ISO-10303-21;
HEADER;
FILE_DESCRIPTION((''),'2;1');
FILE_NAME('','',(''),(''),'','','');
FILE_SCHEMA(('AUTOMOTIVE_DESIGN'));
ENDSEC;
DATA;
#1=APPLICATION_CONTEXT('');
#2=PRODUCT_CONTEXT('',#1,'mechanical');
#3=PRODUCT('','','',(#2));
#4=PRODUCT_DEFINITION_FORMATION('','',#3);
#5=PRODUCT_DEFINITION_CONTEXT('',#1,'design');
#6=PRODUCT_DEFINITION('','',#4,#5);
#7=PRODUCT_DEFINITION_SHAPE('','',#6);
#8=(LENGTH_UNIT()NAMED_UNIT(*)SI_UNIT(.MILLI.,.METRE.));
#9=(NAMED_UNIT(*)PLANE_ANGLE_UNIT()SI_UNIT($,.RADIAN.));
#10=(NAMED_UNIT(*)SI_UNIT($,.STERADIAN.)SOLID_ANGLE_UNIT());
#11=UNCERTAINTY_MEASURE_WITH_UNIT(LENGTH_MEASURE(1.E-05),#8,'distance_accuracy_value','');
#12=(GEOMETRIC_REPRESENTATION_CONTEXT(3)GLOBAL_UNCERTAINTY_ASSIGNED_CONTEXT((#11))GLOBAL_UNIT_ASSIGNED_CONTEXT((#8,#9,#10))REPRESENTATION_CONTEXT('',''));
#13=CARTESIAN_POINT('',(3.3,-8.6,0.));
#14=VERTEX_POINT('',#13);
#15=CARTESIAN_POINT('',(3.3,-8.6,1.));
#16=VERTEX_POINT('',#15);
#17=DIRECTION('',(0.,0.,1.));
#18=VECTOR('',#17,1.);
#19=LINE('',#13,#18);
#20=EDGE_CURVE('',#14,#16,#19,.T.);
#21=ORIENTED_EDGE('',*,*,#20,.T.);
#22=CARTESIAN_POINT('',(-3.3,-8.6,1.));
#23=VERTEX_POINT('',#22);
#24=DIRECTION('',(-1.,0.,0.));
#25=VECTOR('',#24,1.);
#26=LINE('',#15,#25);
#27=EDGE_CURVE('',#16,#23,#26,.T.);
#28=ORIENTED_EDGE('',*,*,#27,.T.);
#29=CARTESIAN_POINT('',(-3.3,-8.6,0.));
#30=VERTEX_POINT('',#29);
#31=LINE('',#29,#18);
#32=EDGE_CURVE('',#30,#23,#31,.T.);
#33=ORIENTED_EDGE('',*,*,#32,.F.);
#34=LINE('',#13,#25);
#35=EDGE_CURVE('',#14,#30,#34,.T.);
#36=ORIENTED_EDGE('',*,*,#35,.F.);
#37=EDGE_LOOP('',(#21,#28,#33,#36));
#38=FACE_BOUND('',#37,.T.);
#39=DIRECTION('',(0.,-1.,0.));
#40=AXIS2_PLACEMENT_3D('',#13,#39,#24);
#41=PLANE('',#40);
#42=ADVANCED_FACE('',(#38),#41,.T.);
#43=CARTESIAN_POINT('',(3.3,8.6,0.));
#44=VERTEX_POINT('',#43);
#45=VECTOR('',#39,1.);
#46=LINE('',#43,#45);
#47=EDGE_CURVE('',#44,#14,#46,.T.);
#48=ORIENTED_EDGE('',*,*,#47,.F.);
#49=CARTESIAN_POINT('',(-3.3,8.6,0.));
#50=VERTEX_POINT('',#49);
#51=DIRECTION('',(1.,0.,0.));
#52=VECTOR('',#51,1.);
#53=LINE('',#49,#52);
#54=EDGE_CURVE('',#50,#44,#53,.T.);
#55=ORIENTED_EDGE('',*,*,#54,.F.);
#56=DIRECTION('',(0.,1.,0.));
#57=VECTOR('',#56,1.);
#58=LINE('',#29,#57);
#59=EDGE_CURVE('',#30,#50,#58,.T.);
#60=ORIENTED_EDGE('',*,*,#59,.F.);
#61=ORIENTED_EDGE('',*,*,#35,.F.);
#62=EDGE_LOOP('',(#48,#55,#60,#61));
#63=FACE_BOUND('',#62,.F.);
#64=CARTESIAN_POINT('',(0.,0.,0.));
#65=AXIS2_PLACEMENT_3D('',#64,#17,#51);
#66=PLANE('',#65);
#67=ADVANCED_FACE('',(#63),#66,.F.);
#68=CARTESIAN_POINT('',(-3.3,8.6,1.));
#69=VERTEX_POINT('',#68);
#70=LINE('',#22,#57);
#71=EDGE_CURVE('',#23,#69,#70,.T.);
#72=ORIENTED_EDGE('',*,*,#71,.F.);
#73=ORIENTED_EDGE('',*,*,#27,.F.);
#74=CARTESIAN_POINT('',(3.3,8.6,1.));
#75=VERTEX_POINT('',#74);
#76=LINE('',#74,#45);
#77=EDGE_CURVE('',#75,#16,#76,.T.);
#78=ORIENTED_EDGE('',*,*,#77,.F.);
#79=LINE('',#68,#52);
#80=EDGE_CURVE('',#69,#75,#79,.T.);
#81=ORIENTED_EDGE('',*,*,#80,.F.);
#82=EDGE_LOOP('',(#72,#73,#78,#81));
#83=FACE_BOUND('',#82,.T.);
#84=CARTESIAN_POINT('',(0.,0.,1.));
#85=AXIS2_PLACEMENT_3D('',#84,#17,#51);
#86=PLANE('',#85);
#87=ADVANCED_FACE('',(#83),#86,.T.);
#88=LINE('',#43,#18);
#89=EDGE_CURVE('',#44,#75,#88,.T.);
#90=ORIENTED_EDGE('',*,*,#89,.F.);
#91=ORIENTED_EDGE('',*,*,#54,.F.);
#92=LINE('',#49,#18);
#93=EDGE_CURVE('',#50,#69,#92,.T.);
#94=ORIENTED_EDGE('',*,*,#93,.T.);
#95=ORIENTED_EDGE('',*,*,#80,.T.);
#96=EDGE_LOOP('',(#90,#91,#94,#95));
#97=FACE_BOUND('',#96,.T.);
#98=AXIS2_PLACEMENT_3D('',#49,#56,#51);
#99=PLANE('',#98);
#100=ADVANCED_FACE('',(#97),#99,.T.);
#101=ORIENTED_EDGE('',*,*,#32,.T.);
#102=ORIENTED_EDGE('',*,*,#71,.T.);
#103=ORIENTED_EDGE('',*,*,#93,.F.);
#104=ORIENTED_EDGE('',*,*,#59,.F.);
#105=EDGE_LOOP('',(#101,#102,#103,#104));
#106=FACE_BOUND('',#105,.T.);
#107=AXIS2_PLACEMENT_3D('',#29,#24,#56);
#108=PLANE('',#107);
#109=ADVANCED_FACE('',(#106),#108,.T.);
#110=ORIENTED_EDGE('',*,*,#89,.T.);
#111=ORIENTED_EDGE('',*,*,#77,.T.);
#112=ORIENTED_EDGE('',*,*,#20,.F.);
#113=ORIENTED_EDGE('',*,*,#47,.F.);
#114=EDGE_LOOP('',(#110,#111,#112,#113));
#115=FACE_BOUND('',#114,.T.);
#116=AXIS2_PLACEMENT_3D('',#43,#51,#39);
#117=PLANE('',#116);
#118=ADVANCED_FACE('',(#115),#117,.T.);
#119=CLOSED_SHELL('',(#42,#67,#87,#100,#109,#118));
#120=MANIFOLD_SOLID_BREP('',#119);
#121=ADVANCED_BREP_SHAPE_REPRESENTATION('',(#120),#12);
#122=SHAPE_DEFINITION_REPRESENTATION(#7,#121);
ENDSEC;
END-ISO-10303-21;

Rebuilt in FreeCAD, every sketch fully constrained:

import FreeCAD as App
import Part
import Sketcher

V = App.Vector

doc = App.newDocument("Part")
params = doc.addObject("Spreadsheet::Sheet", "Params")
for row, (alias, value) in enumerate([
    ("sketch1_width", "6.6 mm"),
    ("sketch1_height", "17.2 mm"),
    ("pad1_length", "1 mm"),
], start=1):
    params.set(f"A{row}", alias)
    params.set(f"B{row}", "=" + value)
    params.setAlias(f"B{row}", alias)

body = doc.addObject("PartDesign::Body", "Body")

sketch1 = doc.addObject("Sketcher::SketchObject", "Sketch")
body.addObject(sketch1)
sketch1.AttachmentSupport = (doc.XY_Plane, [""])
sketch1.MapMode = "FlatFace"
sketch1.addGeometry(Part.LineSegment(V(-3, 9, 0), V(-3, -9, 0)), False)
sketch1.addGeometry(Part.LineSegment(V(-3, -9, 0), V(3, -9, 0)), False)
sketch1.addGeometry(Part.LineSegment(V(3, -9, 0), V(3, 9, 0)), False)
sketch1.addGeometry(Part.LineSegment(V(3, 9, 0), V(-3, 9, 0)), False)
sketch1.addConstraint(Sketcher.Constraint("Coincident", 0, 2, 1, 1))
sketch1.addConstraint(Sketcher.Constraint("Coincident", 1, 2, 2, 1))
sketch1.addConstraint(Sketcher.Constraint("Coincident", 2, 2, 3, 1))
sketch1.addConstraint(Sketcher.Constraint("Coincident", 3, 2, 0, 1))
sketch1.addConstraint(Sketcher.Constraint("Vertical", 0))
sketch1.addConstraint(Sketcher.Constraint("Horizontal", 1))
sketch1.addConstraint(Sketcher.Constraint("Vertical", 2))
sketch1.addConstraint(Sketcher.Constraint("Horizontal", 3))
sketch1.addConstraint(Sketcher.Constraint("Symmetric", 0, 2, 2, 2, -1, 1))
sketch1.addConstraint(Sketcher.Constraint("DistanceX", 1, 1, 1, 2, 6.6))
sketch1.addConstraint(Sketcher.Constraint("DistanceY", 0, 2, 0, 1, 17.2))
sketch1.setExpression("Constraints[9]", "Params.sketch1_width")
sketch1.setExpression("Constraints[10]", "Params.sketch1_height")
pad1 = doc.addObject("PartDesign::Pad", "Pad")
body.addObject(pad1)
pad1.Profile = sketch1
pad1.setExpression("Length", "Params.pad1_length")

doc.recompute()
